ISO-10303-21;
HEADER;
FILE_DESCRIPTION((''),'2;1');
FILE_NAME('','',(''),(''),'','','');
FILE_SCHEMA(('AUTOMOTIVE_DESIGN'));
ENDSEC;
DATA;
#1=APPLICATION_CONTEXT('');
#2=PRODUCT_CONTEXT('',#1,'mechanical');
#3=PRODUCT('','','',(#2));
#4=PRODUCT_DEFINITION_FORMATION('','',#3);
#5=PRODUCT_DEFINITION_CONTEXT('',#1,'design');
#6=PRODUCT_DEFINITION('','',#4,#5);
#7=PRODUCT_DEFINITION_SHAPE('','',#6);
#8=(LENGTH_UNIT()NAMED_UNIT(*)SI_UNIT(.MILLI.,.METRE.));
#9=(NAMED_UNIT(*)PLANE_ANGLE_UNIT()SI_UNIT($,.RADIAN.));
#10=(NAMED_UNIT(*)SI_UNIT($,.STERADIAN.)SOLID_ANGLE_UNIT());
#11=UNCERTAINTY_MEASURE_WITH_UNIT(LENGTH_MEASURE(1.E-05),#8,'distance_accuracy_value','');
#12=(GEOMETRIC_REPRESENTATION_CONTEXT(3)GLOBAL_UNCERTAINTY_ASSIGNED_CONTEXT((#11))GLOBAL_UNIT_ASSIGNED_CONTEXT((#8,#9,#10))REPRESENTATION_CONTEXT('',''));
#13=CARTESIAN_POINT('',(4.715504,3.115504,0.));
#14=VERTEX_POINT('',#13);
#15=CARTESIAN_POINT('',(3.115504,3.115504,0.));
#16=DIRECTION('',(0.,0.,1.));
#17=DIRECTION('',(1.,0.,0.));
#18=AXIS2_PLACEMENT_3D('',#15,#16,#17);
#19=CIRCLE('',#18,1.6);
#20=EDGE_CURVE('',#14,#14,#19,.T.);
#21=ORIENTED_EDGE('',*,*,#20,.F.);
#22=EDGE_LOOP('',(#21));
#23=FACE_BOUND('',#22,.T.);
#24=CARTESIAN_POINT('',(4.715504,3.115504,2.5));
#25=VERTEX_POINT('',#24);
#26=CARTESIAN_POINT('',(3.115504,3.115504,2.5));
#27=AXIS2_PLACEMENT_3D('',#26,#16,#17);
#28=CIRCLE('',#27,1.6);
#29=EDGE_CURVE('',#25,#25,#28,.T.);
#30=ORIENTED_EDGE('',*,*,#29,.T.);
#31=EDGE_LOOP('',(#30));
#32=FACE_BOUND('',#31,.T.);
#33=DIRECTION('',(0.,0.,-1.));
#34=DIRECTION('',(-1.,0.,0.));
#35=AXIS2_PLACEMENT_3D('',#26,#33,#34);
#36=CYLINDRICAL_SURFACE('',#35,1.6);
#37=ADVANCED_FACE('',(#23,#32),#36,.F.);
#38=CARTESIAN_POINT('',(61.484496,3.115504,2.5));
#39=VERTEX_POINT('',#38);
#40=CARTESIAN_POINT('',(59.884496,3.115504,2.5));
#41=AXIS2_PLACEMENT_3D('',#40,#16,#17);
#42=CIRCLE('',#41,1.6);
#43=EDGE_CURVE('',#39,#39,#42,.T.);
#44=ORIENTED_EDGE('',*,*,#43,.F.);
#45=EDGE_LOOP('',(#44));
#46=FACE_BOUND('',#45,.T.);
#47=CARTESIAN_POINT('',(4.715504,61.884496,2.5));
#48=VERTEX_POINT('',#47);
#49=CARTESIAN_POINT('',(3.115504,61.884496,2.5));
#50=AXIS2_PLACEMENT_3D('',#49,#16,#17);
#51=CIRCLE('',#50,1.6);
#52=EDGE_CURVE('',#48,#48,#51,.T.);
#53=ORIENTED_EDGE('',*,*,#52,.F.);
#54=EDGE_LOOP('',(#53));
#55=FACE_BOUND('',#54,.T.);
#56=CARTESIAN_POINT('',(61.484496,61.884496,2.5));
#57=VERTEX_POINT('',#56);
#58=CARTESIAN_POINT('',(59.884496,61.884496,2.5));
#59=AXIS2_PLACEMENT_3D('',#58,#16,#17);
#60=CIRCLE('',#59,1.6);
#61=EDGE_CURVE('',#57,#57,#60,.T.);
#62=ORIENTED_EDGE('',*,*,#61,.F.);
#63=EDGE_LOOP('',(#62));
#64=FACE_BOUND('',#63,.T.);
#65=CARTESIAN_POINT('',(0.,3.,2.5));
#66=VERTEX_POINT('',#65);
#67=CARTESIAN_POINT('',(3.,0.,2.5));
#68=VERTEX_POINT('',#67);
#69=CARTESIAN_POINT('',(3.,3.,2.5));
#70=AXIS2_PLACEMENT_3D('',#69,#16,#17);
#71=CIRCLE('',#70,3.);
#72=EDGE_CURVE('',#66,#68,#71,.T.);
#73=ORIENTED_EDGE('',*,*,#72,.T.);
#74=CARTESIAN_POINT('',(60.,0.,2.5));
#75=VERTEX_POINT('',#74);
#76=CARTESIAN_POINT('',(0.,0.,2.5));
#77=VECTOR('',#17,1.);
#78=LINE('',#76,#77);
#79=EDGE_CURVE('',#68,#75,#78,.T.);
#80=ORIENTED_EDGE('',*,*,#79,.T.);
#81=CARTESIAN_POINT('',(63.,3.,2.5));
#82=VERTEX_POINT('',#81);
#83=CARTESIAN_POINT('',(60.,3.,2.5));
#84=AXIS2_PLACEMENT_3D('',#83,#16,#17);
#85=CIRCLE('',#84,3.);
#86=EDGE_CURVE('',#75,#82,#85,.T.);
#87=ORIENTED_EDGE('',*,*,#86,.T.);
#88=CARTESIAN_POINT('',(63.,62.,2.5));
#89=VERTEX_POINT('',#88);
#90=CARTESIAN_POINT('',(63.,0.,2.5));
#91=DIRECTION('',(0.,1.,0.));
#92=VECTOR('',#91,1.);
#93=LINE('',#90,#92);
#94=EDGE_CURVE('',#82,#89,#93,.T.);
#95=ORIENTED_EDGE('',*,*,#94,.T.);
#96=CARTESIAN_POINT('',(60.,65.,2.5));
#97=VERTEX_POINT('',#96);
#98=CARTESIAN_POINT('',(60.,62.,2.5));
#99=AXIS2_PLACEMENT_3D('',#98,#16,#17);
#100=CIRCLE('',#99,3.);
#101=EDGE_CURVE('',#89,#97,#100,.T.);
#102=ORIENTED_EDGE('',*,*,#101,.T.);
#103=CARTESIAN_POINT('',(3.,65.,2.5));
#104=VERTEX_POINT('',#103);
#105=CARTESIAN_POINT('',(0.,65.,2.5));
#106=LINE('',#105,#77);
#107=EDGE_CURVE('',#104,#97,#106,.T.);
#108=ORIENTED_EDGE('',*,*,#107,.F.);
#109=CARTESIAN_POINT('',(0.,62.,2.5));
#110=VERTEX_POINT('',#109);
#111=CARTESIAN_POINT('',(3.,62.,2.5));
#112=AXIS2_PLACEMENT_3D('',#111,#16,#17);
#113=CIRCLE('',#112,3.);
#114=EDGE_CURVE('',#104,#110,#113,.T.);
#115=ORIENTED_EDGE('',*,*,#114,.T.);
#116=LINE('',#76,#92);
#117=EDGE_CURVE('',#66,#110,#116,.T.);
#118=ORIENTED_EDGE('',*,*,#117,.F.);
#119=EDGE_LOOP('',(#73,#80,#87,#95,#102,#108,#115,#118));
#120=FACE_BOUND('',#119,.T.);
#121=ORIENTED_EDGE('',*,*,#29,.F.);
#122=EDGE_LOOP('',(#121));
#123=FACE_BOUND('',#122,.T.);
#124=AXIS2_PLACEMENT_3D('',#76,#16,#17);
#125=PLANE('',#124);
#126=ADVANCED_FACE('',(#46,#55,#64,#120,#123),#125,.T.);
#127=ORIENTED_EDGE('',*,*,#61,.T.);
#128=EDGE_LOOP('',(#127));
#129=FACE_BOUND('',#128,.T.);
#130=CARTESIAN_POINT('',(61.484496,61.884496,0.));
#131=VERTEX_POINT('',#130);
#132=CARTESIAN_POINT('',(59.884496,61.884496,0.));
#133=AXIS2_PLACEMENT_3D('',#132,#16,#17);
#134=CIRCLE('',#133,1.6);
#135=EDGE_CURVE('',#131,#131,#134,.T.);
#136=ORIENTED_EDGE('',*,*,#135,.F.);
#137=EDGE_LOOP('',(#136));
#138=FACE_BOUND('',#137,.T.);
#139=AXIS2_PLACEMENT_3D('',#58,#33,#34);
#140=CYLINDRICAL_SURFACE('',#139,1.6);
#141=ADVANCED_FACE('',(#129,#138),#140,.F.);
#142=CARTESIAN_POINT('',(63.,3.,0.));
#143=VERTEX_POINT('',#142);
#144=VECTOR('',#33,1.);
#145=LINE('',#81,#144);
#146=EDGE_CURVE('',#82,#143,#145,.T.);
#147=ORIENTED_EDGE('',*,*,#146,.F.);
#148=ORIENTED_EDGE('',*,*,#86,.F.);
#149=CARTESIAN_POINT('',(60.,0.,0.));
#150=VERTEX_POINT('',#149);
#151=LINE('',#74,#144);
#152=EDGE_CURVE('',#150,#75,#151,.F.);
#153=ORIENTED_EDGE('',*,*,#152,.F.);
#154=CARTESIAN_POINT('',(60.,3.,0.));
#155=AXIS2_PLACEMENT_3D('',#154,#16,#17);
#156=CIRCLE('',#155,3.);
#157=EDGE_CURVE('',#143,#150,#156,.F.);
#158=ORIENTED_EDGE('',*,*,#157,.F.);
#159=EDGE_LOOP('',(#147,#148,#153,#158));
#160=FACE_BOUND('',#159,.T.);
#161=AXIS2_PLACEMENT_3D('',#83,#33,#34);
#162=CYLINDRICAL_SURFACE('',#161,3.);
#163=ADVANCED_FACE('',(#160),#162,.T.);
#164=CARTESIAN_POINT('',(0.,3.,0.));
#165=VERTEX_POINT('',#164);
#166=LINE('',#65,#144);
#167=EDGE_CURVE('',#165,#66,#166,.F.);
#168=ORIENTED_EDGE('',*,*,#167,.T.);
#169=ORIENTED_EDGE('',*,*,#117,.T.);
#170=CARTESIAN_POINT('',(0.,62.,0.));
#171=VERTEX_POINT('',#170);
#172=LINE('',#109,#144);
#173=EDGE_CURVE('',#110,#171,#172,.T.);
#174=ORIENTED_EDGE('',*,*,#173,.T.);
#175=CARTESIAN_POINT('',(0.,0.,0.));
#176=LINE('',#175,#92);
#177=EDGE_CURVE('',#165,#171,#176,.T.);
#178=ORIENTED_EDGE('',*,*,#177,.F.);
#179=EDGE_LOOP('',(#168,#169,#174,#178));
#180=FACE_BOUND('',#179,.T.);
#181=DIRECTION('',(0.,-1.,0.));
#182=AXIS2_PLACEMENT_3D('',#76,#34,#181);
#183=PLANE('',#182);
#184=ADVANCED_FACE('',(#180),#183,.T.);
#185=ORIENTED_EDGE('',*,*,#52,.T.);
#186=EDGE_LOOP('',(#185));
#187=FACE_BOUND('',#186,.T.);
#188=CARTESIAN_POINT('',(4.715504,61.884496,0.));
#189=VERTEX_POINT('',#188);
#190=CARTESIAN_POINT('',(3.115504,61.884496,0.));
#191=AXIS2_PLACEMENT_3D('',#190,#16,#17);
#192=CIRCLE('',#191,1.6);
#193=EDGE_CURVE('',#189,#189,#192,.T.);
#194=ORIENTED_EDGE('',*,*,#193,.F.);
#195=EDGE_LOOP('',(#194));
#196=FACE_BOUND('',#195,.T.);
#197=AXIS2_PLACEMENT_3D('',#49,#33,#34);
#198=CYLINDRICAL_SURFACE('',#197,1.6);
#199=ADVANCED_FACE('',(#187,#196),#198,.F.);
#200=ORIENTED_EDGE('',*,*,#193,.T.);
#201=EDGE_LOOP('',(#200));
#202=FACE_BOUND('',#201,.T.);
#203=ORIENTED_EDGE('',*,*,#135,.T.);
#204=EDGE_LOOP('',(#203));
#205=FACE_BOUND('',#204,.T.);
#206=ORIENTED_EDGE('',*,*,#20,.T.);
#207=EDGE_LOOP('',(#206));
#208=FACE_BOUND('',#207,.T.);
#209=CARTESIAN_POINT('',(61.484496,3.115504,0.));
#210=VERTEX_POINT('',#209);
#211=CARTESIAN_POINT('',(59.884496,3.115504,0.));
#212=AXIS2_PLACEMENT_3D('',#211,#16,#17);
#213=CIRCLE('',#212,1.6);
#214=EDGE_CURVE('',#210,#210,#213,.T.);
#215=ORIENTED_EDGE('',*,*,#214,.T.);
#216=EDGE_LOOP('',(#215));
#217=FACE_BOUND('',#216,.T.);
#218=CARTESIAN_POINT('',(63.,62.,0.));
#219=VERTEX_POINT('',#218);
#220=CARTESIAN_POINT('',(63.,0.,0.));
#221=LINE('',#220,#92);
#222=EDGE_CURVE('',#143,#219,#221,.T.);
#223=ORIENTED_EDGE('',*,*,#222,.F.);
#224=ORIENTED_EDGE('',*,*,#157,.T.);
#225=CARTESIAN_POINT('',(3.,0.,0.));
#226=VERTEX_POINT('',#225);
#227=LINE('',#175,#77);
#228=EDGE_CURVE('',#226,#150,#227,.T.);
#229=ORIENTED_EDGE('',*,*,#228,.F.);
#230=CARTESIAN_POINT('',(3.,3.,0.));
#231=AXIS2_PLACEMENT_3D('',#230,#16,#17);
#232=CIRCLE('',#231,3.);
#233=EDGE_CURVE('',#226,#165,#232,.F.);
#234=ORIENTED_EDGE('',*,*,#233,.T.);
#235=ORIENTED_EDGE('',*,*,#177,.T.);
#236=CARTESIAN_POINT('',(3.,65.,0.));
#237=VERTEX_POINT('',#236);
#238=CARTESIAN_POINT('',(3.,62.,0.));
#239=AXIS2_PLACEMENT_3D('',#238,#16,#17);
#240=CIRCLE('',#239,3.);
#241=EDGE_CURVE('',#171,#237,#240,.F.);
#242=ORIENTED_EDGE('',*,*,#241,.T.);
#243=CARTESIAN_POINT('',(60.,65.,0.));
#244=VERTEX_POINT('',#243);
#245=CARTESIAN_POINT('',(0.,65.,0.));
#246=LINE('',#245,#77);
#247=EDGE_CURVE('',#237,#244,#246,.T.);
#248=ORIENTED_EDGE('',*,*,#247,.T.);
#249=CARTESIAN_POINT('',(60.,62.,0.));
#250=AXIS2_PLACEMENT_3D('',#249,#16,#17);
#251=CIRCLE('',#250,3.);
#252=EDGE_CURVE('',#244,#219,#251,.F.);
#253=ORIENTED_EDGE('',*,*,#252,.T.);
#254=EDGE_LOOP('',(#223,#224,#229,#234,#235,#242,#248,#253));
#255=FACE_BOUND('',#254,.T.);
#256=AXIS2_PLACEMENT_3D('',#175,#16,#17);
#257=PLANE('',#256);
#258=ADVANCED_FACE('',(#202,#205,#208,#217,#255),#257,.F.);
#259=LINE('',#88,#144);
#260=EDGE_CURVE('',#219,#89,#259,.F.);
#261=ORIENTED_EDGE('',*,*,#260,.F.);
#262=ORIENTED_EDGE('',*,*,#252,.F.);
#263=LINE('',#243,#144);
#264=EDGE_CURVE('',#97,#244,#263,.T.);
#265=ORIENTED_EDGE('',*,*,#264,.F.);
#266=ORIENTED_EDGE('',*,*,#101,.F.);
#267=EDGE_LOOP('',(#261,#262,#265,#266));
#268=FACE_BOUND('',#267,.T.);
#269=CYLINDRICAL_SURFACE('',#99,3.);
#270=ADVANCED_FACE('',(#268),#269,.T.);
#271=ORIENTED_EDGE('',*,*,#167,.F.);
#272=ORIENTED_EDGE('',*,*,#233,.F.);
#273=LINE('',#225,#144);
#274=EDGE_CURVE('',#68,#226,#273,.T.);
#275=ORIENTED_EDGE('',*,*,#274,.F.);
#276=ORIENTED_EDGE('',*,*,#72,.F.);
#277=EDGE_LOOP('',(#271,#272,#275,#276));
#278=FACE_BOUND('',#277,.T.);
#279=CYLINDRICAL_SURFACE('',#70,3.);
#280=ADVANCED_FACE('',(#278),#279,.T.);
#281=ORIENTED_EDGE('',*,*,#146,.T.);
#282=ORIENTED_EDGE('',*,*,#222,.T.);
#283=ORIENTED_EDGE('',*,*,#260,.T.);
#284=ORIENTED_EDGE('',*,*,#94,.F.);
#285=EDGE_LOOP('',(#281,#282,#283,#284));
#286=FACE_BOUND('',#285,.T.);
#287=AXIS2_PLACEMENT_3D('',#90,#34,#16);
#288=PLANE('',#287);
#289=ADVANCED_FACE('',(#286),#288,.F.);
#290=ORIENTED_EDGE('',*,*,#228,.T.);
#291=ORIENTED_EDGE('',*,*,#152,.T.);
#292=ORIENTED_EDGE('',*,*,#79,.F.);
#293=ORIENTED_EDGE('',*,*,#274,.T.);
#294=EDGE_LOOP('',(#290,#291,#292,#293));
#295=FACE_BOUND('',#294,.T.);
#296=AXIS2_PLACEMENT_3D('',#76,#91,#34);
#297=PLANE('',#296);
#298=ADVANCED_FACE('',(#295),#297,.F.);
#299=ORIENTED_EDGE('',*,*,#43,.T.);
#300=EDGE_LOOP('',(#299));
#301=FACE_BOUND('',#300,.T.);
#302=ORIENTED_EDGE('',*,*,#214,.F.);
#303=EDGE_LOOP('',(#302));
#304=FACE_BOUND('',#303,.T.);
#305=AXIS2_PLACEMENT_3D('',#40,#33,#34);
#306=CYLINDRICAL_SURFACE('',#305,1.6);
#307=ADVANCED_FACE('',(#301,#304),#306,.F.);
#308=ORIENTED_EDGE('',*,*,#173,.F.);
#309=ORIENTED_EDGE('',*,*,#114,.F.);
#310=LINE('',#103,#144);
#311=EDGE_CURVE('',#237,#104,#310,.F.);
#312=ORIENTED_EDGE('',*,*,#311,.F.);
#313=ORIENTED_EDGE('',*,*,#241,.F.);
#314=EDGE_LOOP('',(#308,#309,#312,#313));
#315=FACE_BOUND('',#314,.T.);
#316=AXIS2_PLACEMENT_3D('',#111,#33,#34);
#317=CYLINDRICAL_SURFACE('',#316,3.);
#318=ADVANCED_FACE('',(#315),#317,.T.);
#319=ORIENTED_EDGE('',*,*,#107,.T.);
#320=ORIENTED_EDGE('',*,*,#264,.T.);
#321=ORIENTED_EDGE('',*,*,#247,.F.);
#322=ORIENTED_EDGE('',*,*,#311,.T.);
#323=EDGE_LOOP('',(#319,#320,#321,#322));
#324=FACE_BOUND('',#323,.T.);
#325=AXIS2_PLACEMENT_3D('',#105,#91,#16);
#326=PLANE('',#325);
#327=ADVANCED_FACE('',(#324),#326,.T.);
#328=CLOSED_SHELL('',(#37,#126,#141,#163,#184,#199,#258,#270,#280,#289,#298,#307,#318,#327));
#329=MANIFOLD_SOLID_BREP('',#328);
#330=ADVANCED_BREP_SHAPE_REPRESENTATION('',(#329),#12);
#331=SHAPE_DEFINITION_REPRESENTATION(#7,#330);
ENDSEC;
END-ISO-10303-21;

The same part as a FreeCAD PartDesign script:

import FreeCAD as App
import Part
import Sketcher
from FreeCAD import Vector
Q = App.Units.Quantity


def edges_at(feature, points):
    """Names of the edges that pass closest to the given points."""
    edges = feature.Shape.Edges
    near = lambda p: min(range(len(edges)), key=lambda i: edges[i].distToShape(Part.Vertex(*p))[0])
    return sorted({f"Edge{near(p) + 1}" for p in points})


def add_polygon(sketch, points):
    """Adds a closed chain of lines whose ends are joined by coincident constraints."""
    first, n = sketch.GeometryCount, len(points)
    for a, b in zip(points, points[1:] + points[:1]):
        sketch.addGeometry(Part.LineSegment(App.Vector(*a, 0), App.Vector(*b, 0)), False)
    for i in range(n):
        sketch.addConstraint(Sketcher.Constraint("Coincident", first + i, 2, first + (i + 1) % n, 1))

doc = App.newDocument("Part")
body = doc.addObject("PartDesign::Body", "Body")

# Sketch on XY plane
sketch1 = body.newObject("Sketcher::SketchObject", "Sketch")
sketch1.AttachmentSupport = (doc.getObject("XY_Plane"), [""])
sketch1.MapMode = "FlatFace"
add_polygon(sketch1, [(0, 65), (0, 0), (63, 0), (63, 65)])  # lines 0-3
sketch1.addConstraint(Sketcher.Constraint("Vertical", 0))
sketch1.addConstraint(Sketcher.Constraint("Horizontal", 1))
sketch1.addConstraint(Sketcher.Constraint("Vertical", 2))
sketch1.addConstraint(Sketcher.Constraint("Horizontal", 3))
sketch1.addConstraint(Sketcher.Constraint("Coincident", 0, 2, -1, 1))
sketch1.addConstraint(Sketcher.Constraint("DistanceX", 1, 1, 1, 2, Q("63 mm")))
sketch1.addConstraint(Sketcher.Constraint("DistanceY", 0, 2, 0, 1, Q("65 mm")))
pad1 = body.newObject("PartDesign::Pad", "Pad")
pad1.Profile = sketch1
pad1.Length = 2.5
doc.recompute()

fillet = body.newObject("PartDesign::Fillet", "Fillet")
fillet.Base = (pad1, edges_at(pad1, [
    (0, 0, 1.25),
    (0, 65, 1.25),
    (63, 65, 1.25),
    (63, 0, 1.25),
]))
fillet.Radius = 3

# Sketch on XY plane
sketch2 = body.newObject("Sketcher::SketchObject", "Sketch001")
sketch2.AttachmentSupport = (doc.getObject("XY_Plane"), [""])
sketch2.MapMode = "FlatFace"
sketch2.addGeometry(Part.Circle(Vector(3.1, 61.9, 0), Vector(0, 0, 1), 1.6), False)
sketch2.addGeometry(Part.Circle(Vector(3.1, 3.1, 0), Vector(0, 0, 1), 1.6), False)
sketch2.addGeometry(Part.Circle(Vector(59.9, 3.1, 0), Vector(0, 0, 1), 1.6), False)
sketch2.addGeometry(Part.Circle(Vector(59.9, 61.9, 0), Vector(0, 0, 1), 1.6), False)
sketch2.addConstraint(Sketcher.Constraint("Equal", 0, 1))
sketch2.addConstraint(Sketcher.Constraint("Equal", 1, 2))
sketch2.addConstraint(Sketcher.Constraint("Equal", 2, 3))
sketch2.addConstraint(Sketcher.Constraint("Horizontal", 1, 3, 2, 3))
sketch2.addConstraint(Sketcher.Constraint("Horizontal", 0, 3, 3, 3))
sketch2.addConstraint(Sketcher.Constraint("Vertical", 0, 3, 1, 3))
sketch2.addConstraint(Sketcher.Constraint("Vertical", 2, 3, 3, 3))
sketch2.addConstraint(Sketcher.Constraint("Diameter", 0, Q("3.2 mm")))
sketch2.addConstraint(Sketcher.Constraint("DistanceX", -1, 1, 0, 3, Q("3.115504 mm")))
sketch2.addConstraint(Sketcher.Constraint("DistanceY", -1, 1, 0, 3, Q("61.884496 mm")))
sketch2.addConstraint(Sketcher.Constraint("DistanceY", -1, 1, 1, 3, Q("3.115504 mm")))
sketch2.addConstraint(Sketcher.Constraint("DistanceX", -1, 1, 2, 3, Q("59.884496 mm")))
pocket1 = body.newObject("PartDesign::Pocket", "Pocket")
pocket1.Profile = sketch2
pocket1.Length = 2.5
pocket1.Reversed = True

doc.recompute()
